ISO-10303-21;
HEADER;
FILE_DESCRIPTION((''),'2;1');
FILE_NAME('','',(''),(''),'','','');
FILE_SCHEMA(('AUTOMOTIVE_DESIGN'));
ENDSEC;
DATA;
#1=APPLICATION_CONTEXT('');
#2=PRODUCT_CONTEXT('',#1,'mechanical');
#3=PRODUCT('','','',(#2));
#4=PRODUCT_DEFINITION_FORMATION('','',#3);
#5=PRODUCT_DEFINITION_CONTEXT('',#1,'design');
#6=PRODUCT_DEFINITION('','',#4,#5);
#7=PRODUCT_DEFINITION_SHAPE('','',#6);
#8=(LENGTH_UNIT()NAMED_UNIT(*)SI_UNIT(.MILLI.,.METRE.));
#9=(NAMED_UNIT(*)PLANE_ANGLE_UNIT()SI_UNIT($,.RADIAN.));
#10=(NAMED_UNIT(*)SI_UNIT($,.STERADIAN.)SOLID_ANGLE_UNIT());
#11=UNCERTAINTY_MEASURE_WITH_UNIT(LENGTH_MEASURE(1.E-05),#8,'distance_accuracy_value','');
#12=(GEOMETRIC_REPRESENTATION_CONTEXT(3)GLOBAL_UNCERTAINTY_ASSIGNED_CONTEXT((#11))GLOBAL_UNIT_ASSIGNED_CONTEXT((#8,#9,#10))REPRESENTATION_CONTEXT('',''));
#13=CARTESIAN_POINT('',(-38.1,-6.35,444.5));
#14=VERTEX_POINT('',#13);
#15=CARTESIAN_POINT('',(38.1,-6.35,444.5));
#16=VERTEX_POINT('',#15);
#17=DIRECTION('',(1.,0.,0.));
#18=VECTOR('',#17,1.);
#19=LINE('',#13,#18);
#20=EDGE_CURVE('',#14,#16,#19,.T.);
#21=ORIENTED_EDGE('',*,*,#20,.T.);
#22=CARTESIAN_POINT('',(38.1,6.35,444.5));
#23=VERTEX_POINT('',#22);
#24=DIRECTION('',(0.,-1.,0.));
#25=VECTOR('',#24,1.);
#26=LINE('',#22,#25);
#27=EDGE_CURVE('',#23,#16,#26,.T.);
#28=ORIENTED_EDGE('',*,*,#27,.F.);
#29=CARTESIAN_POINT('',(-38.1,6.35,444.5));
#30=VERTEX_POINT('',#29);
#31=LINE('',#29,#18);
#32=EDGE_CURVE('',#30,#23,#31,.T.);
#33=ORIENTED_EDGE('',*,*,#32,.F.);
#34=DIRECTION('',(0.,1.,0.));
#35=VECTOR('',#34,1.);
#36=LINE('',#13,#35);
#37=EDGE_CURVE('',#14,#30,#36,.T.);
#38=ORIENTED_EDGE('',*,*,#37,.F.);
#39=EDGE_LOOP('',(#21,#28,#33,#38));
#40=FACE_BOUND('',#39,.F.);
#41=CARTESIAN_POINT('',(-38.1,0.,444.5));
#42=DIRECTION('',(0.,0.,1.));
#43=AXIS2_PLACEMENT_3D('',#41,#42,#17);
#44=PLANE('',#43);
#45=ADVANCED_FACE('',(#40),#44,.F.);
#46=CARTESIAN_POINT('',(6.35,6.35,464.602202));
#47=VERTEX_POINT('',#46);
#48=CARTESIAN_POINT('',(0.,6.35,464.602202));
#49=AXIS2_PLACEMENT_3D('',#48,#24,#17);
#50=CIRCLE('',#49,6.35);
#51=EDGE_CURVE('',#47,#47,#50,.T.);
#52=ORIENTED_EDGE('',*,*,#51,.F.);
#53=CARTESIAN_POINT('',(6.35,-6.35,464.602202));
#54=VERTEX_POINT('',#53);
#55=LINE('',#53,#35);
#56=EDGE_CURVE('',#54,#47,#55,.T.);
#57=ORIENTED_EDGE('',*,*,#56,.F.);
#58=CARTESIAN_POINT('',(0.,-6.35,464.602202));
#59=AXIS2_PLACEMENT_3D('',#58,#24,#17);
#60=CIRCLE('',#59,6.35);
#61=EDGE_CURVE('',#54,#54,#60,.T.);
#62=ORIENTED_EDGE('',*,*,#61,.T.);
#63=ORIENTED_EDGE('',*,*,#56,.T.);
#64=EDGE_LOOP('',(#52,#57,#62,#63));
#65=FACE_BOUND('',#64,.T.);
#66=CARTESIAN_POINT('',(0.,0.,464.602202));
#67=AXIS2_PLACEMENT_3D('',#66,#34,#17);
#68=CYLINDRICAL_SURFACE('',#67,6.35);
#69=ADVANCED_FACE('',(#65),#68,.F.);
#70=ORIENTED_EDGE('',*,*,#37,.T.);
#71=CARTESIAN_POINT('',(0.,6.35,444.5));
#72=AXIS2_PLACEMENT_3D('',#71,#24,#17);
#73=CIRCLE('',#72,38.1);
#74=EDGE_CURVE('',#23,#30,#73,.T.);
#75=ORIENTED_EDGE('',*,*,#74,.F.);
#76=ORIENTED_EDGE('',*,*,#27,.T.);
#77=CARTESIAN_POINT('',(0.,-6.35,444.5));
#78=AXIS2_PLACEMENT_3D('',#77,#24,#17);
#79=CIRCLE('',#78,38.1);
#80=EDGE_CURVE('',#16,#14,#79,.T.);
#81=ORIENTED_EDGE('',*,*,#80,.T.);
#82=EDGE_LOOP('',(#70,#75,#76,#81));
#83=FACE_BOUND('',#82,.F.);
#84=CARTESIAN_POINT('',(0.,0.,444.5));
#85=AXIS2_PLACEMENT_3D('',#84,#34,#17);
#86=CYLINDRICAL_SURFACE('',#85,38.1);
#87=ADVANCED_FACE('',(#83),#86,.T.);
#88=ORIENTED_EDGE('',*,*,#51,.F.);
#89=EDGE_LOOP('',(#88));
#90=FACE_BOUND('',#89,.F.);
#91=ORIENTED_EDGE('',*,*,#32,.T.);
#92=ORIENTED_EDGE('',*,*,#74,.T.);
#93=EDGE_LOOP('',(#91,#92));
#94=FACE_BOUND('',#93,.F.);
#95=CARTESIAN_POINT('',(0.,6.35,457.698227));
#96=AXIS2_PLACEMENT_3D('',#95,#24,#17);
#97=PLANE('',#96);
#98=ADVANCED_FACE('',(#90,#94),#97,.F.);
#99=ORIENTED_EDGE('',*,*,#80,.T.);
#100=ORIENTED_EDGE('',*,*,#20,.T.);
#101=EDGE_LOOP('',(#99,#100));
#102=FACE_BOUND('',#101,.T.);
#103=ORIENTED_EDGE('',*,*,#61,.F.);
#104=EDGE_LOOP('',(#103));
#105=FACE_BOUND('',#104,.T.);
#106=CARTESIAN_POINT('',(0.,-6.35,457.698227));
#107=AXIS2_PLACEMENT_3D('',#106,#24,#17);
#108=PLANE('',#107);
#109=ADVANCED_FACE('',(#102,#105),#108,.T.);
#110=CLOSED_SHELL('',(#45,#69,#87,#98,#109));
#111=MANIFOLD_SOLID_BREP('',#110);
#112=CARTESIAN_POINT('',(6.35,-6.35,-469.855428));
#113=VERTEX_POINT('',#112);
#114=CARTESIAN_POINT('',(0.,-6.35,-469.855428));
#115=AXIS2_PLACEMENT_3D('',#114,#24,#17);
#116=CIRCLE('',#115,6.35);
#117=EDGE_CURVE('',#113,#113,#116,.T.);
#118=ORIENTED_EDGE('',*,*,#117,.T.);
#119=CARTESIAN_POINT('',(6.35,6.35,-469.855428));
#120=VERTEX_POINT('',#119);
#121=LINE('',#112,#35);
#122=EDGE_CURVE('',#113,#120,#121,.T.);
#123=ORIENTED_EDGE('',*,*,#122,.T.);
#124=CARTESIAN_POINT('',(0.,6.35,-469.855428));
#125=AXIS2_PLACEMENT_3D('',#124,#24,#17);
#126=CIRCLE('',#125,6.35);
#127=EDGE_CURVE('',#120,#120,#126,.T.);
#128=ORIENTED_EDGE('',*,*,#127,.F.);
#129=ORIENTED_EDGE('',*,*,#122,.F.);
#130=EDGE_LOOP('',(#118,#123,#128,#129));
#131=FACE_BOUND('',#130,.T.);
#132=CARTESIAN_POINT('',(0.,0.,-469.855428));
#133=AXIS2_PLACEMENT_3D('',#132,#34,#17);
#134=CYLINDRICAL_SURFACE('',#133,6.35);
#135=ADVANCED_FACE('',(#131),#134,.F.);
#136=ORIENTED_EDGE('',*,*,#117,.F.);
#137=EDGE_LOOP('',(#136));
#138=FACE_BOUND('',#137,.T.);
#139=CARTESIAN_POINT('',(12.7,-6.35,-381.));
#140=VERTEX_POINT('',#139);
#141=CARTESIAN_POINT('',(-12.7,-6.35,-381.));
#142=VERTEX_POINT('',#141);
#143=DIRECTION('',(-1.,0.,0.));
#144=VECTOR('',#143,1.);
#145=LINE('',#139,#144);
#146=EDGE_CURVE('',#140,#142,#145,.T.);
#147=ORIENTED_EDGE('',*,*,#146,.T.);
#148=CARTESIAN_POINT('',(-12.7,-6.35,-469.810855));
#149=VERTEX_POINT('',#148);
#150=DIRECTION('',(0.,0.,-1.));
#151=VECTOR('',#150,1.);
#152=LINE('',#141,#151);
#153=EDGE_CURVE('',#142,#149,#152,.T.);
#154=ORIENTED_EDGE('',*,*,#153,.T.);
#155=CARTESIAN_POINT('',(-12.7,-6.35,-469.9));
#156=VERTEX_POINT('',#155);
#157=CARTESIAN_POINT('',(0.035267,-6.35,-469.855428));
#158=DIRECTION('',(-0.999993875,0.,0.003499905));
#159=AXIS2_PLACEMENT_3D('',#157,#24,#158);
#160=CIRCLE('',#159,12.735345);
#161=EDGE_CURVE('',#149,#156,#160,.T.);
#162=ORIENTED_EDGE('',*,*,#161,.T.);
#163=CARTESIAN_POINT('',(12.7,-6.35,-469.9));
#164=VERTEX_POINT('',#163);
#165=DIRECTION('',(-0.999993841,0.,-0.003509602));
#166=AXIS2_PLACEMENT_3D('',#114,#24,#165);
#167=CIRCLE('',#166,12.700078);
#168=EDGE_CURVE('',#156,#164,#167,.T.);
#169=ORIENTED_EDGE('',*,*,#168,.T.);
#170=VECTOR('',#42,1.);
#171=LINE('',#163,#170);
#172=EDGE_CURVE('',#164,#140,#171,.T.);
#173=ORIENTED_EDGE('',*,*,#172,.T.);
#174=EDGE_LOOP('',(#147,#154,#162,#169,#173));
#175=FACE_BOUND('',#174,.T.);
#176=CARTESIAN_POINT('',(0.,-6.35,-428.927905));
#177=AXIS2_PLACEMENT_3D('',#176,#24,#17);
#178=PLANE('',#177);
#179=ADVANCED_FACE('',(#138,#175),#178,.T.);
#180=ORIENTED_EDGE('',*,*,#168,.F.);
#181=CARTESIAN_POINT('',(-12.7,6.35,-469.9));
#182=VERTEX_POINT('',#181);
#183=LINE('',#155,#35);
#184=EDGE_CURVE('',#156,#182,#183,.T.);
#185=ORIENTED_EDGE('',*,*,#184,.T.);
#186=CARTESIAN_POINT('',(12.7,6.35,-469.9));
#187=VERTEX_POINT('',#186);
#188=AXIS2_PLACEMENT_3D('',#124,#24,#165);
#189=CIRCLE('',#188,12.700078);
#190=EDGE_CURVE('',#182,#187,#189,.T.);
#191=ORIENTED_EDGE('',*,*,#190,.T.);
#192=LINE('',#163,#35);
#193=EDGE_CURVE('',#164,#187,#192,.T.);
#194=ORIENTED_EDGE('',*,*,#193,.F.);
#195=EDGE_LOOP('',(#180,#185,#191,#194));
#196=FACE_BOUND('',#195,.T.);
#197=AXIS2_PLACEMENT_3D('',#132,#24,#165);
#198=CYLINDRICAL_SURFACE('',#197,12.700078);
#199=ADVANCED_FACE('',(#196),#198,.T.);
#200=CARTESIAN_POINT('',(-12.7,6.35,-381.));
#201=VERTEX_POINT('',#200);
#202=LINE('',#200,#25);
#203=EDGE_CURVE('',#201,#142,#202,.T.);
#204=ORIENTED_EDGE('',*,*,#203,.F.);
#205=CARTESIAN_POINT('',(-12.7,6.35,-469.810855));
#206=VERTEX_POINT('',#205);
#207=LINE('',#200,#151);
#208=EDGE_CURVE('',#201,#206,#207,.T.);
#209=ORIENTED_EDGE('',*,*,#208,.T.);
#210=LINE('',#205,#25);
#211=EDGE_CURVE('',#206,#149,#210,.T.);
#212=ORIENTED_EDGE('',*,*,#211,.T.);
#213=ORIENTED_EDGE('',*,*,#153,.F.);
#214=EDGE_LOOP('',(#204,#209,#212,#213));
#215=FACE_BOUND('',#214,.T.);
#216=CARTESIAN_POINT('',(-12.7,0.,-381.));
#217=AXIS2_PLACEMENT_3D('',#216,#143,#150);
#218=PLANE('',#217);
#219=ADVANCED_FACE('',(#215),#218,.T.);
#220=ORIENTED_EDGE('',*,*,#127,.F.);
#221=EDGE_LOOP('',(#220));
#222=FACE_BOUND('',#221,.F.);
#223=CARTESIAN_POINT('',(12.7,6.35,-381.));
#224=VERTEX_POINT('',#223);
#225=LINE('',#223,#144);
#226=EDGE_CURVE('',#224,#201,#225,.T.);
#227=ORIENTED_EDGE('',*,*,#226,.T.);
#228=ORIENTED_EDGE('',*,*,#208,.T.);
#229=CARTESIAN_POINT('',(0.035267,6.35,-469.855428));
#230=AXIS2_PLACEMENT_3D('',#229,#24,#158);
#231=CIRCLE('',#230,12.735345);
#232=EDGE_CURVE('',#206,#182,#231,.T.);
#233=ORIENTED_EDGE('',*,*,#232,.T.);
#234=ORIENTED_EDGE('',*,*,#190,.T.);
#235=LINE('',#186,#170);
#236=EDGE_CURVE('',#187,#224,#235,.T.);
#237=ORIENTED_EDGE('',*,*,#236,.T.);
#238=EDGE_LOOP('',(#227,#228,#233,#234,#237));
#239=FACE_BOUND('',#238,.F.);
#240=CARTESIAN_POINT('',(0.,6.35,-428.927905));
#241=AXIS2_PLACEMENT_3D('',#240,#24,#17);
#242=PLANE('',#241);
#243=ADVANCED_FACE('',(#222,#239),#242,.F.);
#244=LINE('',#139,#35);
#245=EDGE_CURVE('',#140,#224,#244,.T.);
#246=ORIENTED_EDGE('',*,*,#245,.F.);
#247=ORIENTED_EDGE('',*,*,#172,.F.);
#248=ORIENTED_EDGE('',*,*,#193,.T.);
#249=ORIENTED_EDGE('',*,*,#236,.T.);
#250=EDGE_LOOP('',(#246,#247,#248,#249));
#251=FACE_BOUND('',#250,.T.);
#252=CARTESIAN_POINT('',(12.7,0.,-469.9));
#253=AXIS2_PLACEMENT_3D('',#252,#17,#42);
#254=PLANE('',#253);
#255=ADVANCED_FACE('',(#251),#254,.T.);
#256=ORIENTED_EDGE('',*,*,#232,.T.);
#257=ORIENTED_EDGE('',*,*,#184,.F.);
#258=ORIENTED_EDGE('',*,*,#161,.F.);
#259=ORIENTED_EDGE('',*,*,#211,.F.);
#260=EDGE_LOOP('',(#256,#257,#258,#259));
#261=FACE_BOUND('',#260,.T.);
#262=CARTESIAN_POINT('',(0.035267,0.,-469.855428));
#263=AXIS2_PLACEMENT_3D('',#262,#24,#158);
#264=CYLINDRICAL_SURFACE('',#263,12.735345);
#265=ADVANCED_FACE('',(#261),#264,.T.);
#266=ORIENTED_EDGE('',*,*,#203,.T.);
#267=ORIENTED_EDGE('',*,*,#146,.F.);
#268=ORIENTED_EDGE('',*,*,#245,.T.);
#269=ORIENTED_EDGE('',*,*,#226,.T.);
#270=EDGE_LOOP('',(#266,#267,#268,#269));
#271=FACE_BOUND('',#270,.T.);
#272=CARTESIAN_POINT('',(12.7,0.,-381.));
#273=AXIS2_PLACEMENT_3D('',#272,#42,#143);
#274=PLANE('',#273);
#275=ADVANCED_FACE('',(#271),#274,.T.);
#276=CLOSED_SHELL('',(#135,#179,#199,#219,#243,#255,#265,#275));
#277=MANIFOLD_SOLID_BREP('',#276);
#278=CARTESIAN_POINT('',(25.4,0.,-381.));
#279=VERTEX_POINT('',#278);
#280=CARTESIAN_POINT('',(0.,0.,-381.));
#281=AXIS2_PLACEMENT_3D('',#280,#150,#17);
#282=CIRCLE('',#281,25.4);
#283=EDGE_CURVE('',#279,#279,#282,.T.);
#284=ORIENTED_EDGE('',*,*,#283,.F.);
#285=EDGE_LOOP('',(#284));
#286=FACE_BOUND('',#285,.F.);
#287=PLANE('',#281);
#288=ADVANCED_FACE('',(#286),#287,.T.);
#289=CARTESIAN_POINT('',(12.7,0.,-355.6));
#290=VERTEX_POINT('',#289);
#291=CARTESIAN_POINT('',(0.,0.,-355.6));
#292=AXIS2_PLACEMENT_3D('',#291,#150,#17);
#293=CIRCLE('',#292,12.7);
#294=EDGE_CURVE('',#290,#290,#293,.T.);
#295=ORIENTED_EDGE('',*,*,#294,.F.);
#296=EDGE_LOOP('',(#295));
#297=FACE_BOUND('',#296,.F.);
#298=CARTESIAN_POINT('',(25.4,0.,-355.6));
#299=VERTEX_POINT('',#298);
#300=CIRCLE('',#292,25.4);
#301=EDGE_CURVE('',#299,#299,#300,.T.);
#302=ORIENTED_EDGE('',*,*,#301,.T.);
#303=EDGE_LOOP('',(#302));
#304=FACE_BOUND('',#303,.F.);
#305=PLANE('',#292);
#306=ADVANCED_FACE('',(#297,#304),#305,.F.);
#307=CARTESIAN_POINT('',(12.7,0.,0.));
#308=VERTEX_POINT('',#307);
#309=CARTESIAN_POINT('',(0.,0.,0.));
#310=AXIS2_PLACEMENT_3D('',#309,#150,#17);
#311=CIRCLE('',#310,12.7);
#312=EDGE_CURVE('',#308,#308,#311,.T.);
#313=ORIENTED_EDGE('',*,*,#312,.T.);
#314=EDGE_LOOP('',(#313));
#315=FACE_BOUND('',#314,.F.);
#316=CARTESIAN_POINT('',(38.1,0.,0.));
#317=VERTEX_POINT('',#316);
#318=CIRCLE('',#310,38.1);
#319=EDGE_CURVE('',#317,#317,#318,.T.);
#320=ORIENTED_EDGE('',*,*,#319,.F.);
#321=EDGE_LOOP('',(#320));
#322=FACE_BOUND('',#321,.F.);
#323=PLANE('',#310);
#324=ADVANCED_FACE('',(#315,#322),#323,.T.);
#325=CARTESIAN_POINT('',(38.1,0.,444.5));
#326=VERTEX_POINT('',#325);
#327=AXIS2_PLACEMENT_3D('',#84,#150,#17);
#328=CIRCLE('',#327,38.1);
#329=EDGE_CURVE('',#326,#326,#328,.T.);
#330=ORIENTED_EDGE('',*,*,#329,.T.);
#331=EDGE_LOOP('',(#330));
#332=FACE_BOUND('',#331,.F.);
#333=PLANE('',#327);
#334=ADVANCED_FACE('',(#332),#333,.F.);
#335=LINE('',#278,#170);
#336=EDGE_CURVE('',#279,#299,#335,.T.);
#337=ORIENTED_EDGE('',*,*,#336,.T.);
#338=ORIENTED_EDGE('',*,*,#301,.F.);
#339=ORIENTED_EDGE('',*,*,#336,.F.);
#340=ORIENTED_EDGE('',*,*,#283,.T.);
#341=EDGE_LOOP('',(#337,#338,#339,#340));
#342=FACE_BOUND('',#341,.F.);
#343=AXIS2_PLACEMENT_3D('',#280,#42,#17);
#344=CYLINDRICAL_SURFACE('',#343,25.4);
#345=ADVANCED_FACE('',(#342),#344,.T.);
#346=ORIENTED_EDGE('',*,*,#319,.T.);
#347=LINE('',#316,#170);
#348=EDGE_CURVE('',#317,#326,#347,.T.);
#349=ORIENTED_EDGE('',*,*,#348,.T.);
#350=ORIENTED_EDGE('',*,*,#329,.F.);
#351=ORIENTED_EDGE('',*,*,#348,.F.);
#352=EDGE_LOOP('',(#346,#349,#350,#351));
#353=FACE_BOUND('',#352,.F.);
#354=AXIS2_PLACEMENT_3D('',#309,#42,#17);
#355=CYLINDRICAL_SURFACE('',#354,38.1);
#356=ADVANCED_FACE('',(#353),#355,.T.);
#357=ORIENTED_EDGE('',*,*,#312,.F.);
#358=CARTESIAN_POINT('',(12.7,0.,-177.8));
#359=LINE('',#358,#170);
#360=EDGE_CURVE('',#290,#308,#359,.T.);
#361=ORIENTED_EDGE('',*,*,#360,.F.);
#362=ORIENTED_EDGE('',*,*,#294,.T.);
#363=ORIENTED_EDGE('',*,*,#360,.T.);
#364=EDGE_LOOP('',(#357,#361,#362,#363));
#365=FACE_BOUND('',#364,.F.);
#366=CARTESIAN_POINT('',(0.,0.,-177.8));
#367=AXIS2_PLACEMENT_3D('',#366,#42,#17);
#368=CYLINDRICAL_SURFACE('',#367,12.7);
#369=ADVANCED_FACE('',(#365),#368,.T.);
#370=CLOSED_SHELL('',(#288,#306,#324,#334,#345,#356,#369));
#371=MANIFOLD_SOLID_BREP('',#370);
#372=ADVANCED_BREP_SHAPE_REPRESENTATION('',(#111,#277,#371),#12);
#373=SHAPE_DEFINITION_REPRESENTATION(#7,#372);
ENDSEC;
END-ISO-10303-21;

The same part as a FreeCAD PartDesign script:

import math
import FreeCAD as App
import Part
import Sketcher
from FreeCAD import Vector
Q = App.Units.Quantity

doc = App.newDocument("Part")
body = doc.addObject("PartDesign::Body", "Body")
body.AllowCompound = True

# Sketch on XZ plane
sketch1 = body.newObject("Sketcher::SketchObject", "Sketch")
sketch1.AttachmentSupport = (doc.getObject("XZ_Plane"), [""])
sketch1.MapMode = "FlatFace"
sketch1.addGeometry(Part.LineSegment(Vector(-38.1, 444.5, 0), Vector(38.1, 444.5, 0)), False)
sketch1.addGeometry(Part.ArcOfCircle(Part.Circle(Vector(0, 444.5, 0), Vector(0, 0, 1), 38.1), math.radians(0), math.radians(180)), False)
sketch1.addGeometry(Part.Circle(Vector(0, 464.6, 0), Vector(0, 0, 1), 6.35), False)
sketch1.addGeometry(Part.LineSegment(Vector(12.7, -381, 0), Vector(-12.7, -381, 0)), False)
sketch1.addGeometry(Part.LineSegment(Vector(-12.7, -381, 0), Vector(-12.7, -469.81, 0)), False)
sketch1.addGeometry(Part.ArcOfCircle(Part.Circle(Vector(0.04, -469.86, 0), Vector(0, 0, 1), 12.74), math.radians(179.8), math.radians(180.2)), False)
sketch1.addGeometry(Part.ArcOfCircle(Part.Circle(Vector(0, -469.86, 0), Vector(0, 0, 1), 12.7), math.radians(-180), math.radians(0)), False)
sketch1.addGeometry(Part.LineSegment(Vector(12.7, -469.9, 0), Vector(12.7, -381, 0)), False)
sketch1.addGeometry(Part.Circle(Vector(0, -469.86, 0), Vector(0, 0, 1), 6.35), False)
sketch1.addConstraint(Sketcher.Constraint("Coincident", 0, 1, 1, 2))
sketch1.addConstraint(Sketcher.Constraint("Coincident", 1, 1, 0, 2))
sketch1.addConstraint(Sketcher.Constraint("Coincident", 3, 2, 4, 1))
sketch1.addConstraint(Sketcher.Constraint("Coincident", 4, 2, 5, 1))
sketch1.addConstraint(Sketcher.Constraint("Coincident", 5, 2, 6, 1))
sketch1.addConstraint(Sketcher.Constraint("Coincident", 6, 2, 7, 1))
sketch1.addConstraint(Sketcher.Constraint("Coincident", 7, 2, 3, 1))
sketch1.addConstraint(Sketcher.Constraint("Horizontal", 0))
sketch1.addConstraint(Sketcher.Constraint("Horizontal", 3))
sketch1.addConstraint(Sketcher.Constraint("Vertical", 4))
sketch1.addConstraint(Sketcher.Constraint("Vertical", 7))
sketch1.addConstraint(Sketcher.Constraint("Coincident", 8, 3, 6, 3))
sketch1.addConstraint(Sketcher.Constraint("Equal", 2, 8))
sketch1.addConstraint(Sketcher.Constraint("Symmetric", 5, 2, 6, 2, -2))
sketch1.addConstraint(Sketcher.Constraint("PointOnObject", 1, 3, -2))
sketch1.addConstraint(Sketcher.Constraint("PointOnObject", 2, 3, -2))
sketch1.addConstraint(Sketcher.Constraint("Horizontal", 5, 3, 6, 3))
sketch1.addConstraint(Sketcher.Constraint("Horizontal", 1, 3, 0, 1))
sketch1.addConstraint(Sketcher.Constraint("Vertical", 4, 2, 5, 2))
sketch1.addConstraint(Sketcher.Constraint("Diameter", 2, Q("0.5 in")))
sketch1.addConstraint(Sketcher.Constraint("Radius", 1, Q("1.5 in")))
sketch1.addConstraint(Sketcher.Constraint("DistanceX", 3, 2, 3, 1, Q("1 in")))
sketch1.addConstraint(Sketcher.Constraint("DistanceY", 7, 1, 7, 2, Q("3.5 in")))
sketch1.addConstraint(Sketcher.Constraint("DistanceY", 3, 2, -1, 1, Q("15 in")))
sketch1.addConstraint(Sketcher.Constraint("DistanceY", -1, 1, 1, 3, Q("17.5 in")))
sketch1.addConstraint(Sketcher.Constraint("Radius", 5, 12.735345))
sketch1.addConstraint(Sketcher.Constraint("DistanceY", -1, 1, 2, 3, 464.602202))
sketch1.addConstraint(Sketcher.Constraint("DistanceY", 4, 2, 4, 1, 88.810855))
pad1 = body.newObject("PartDesign::Pad", "Pad")
pad1.Profile = sketch1
pad1.Length = Q("0.5 in")
pad1.Midplane = True
body2 = doc.addObject("PartDesign::Body", "Body001")

# Sketch on XZ plane
sketch2 = body2.newObject("Sketcher::SketchObject", "Sketch001")
sketch2.AttachmentSupport = (doc.getObject("XZ_Plane001"), [""])
sketch2.MapMode = "FlatFace"
sketch2.addGeometry(Part.LineSegment(Vector(0, 444, 0), Vector(0, -381, 0)), False)
sketch2.addGeometry(Part.LineSegment(Vector(0, -381, 0), Vector(25, -381, 0)), False)
sketch2.addGeometry(Part.LineSegment(Vector(25, -381, 0), Vector(25, -356, 0)), False)
sketch2.addGeometry(Part.LineSegment(Vector(25, -356, 0), Vector(13, -356, 0)), False)
sketch2.addGeometry(Part.LineSegment(Vector(13, -356, 0), Vector(13, 0, 0)), False)
sketch2.addGeometry(Part.LineSegment(Vector(13, 0, 0), Vector(38, 0, 0)), False)
sketch2.addGeometry(Part.LineSegment(Vector(38, 0, 0), Vector(38, 444, 0)), False)
sketch2.addGeometry(Part.LineSegment(Vector(38, 444, 0), Vector(0, 444, 0)), False)
sketch2.addConstraint(Sketcher.Constraint("Coincident", 0, 2, 1, 1))
sketch2.addConstraint(Sketcher.Constraint("Coincident", 1, 2, 2, 1))
sketch2.addConstraint(Sketcher.Constraint("Coincident", 2, 2, 3, 1))
sketch2.addConstraint(Sketcher.Constraint("Coincident", 3, 2, 4, 1))
sketch2.addConstraint(Sketcher.Constraint("Coincident", 4, 2, 5, 1))
sketch2.addConstraint(Sketcher.Constraint("Coincident", 5, 2, 6, 1))
sketch2.addConstraint(Sketcher.Constraint("Coincident", 6, 2, 7, 1))
sketch2.addConstraint(Sketcher.Constraint("Coincident", 7, 2, 0, 1))
sketch2.addConstraint(Sketcher.Constraint("Vertical", 0))
sketch2.addConstraint(Sketcher.Constraint("Horizontal", 1))
sketch2.addConstraint(Sketcher.Constraint("Vertical", 2))
sketch2.addConstraint(Sketcher.Constraint("Horizontal", 3))
sketch2.addConstraint(Sketcher.Constraint("Vertical", 4))
sketch2.addConstraint(Sketcher.Constraint("Horizontal", 5))
sketch2.addConstraint(Sketcher.Constraint("Vertical", 6))
sketch2.addConstraint(Sketcher.Constraint("Horizontal", 7))
sketch2.addConstraint(Sketcher.Constraint("PointOnObject", 0, 2, -2))
sketch2.addConstraint(Sketcher.Constraint("PointOnObject", 4, 2, -1))
sketch2.addConstraint(Sketcher.Constraint("Equal", 1, 5))
sketch2.addConstraint(Sketcher.Constraint("Equal", 5, 2))
sketch2.addConstraint(Sketcher.Constraint("DistanceX", 1, 1, 1, 2, Q("1 in")))
sketch2.addConstraint(Sketcher.Constraint("DistanceY", 4, 1, 4, 2, Q("14 in")))
sketch2.addConstraint(Sketcher.Constraint("DistanceX", 3, 2, 3, 1, Q("0.5 in")))
sketch2.addConstraint(Sketcher.Constraint("DistanceY", 0, 2, 0, 1, Q("32.5 in")))
revolution = body2.newObject("PartDesign::Revolution", "Revolution")
revolution.Profile = sketch2
revolution.ReferenceAxis = (sketch2, ["V_Axis"])
revolution.Angle = 360

doc.recompute()
